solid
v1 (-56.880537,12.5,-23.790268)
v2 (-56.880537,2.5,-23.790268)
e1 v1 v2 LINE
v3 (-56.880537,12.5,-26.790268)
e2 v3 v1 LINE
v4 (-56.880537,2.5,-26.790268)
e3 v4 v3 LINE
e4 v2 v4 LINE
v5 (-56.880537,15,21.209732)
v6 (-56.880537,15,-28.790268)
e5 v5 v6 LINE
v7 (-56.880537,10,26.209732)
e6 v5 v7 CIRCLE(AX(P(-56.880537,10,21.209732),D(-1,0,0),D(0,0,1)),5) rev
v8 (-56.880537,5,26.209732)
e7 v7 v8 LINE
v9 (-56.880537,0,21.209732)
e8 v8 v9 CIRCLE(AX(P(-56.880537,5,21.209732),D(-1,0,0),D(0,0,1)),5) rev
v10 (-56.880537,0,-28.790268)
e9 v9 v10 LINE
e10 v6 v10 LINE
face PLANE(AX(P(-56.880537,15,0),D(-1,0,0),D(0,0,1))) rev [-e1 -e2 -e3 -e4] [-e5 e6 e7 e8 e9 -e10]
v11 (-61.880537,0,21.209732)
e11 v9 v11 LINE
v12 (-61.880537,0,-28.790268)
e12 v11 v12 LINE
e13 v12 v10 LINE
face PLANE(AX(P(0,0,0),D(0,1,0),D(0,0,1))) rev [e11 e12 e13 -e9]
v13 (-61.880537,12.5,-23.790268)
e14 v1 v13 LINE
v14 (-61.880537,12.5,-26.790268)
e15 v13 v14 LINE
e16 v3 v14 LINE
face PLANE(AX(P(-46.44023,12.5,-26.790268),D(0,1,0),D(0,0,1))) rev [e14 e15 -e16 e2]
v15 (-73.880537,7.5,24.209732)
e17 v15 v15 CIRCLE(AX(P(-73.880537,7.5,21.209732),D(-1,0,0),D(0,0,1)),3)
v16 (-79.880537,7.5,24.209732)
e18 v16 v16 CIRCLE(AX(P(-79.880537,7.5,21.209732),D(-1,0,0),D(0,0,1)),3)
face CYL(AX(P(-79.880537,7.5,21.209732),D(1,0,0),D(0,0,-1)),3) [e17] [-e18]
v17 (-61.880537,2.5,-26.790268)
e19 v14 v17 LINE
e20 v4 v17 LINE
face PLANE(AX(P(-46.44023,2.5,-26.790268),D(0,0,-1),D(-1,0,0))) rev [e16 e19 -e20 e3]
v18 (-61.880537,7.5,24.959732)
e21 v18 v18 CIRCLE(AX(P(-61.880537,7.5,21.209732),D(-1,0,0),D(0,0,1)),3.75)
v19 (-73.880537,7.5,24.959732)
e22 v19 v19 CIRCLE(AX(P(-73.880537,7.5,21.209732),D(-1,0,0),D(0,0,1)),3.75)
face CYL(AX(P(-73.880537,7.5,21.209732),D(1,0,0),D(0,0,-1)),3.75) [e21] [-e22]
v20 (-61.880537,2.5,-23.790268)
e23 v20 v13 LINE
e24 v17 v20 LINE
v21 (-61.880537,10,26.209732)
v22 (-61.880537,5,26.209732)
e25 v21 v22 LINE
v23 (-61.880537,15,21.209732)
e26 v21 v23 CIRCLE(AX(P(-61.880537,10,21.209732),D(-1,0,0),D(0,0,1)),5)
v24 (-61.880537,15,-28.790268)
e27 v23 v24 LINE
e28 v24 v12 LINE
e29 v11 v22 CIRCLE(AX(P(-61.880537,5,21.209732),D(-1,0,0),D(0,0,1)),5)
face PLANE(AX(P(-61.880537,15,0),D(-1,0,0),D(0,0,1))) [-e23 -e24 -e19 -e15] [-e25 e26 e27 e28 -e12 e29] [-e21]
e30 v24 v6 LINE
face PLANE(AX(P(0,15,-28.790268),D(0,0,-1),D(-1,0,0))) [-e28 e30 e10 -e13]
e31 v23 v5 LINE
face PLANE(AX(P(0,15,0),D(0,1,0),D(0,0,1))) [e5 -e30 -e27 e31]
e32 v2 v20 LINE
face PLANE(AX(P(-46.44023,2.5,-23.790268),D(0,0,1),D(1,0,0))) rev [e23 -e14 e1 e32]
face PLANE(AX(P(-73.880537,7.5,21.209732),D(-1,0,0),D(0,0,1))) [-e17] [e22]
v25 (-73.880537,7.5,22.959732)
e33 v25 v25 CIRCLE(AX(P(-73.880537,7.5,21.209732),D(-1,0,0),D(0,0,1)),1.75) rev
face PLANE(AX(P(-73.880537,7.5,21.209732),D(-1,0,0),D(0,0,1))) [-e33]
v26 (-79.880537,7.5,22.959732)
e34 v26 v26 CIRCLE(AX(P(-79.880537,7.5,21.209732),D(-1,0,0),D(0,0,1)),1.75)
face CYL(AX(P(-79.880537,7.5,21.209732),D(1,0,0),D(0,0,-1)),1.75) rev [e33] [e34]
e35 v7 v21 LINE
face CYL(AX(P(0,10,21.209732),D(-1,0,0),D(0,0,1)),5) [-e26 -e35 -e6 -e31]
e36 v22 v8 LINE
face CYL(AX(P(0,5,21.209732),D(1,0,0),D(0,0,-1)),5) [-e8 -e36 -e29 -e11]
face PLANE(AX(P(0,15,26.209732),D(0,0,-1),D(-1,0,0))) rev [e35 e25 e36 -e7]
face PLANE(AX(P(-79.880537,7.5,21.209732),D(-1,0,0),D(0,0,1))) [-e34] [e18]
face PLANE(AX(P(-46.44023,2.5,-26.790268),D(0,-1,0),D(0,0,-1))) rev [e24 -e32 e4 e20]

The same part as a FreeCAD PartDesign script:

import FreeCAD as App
import Part
import Sketcher

V = App.Vector


def edges_at(feature, points):
    """Names of the edges that pass closest to the given points."""
    edges = feature.Shape.Edges
    near = lambda p: min(range(len(edges)), key=lambda i: edges[i].distToShape(Part.Vertex(*p))[0])
    return sorted({f"Edge{near(p) + 1}" for p in points})


def add_polygon(sketch, points):
    """Adds a closed chain of lines whose ends are joined by coincident constraints."""
    first, n = sketch.GeometryCount, len(points)
    for a, b in zip(points, points[1:] + points[:1]):
        sketch.addGeometry(Part.LineSegment(App.Vector(*a, 0), App.Vector(*b, 0)), False)
    for i in range(n):
        sketch.addConstraint(Sketcher.Constraint("Coincident", first + i, 2, first + (i + 1) % n, 1))

doc = App.newDocument("Part")
body = doc.addObject("PartDesign::Body", "Body")

sketch1 = doc.addObject("Sketcher::SketchObject", "Sketch")
body.addObject(sketch1)
sketch1.AttachmentSupport = (doc.XZ_Plane, [""])
sketch1.MapMode = "FlatFace"
add_polygon(sketch1, [(-62, -29), (-62, 26), (-57, 26), (-57, -29)])
sketch1.addConstraint([
    Sketcher.Constraint("Vertical", 0),
    Sketcher.Constraint("Horizontal", 1),
    Sketcher.Constraint("Vertical", 2),
    Sketcher.Constraint("Horizontal", 3),
    Sketcher.Constraint("DistanceX", 1, 1, 1, 2, 5.0),
    Sketcher.Constraint("DistanceY", 0, 1, 0, 2, 55.0),
    Sketcher.Constraint("DistanceY", -1, 1, 0, 2, 26.209732),
    Sketcher.Constraint("DistanceX", 0, 2, -1, 1, 61.880537),
])
pad1 = doc.addObject("PartDesign::Pad", "Pad")
body.addObject(pad1)
pad1.Profile = sketch1
pad1.Length = 15
pad1.Reversed = True
doc.recompute()

fillet = doc.addObject("PartDesign::Fillet", "Fillet")
body.addObject(fillet)
fillet.Base = (pad1, edges_at(pad1, [(-59.381, 15, 26.21), (-59.381, 0, 26.21)]))
fillet.Radius = 5

sketch2 = doc.addObject("Sketcher::SketchObject", "Sketch001")
body.addObject(sketch2)
sketch2.AttachmentSupport = (doc.YZ_Plane, [""])
sketch2.MapMode = "FlatFace"
sketch2.AttachmentOffset = App.Placement(V(0, 0, -61.880537), App.Rotation())
add_polygon(sketch2, [(12.5, -26.8), (2.5, -26.8), (2.5, -23.8), (12.5, -23.8)])
sketch2.addConstraint([
    Sketcher.Constraint("Horizontal", 0),
    Sketcher.Constraint("Vertical", 1),
    Sketcher.Constraint("Horizontal", 2),
    Sketcher.Constraint("Vertical", 3),
    Sketcher.Constraint("DistanceX", 0, 2, 0, 1, 10.0),
    Sketcher.Constraint("DistanceY", 1, 1, 1, 2, 3.0),
    Sketcher.Constraint("DistanceX", -1, 1, 0, 2, 2.5),
    Sketcher.Constraint("DistanceY", 0, 2, -1, 1, 26.790268),
])
pocket1 = doc.addObject("PartDesign::Pocket", "Pocket")
body.addObject(pocket1)
pocket1.Profile = sketch2
pocket1.Length = 5
pocket1.Reversed = True

sketch3 = doc.addObject("Sketcher::SketchObject", "Sketch002")
body.addObject(sketch3)
sketch3.AttachmentSupport = (doc.YZ_Plane, [""])
sketch3.MapMode = "FlatFace"
sketch3.AttachmentOffset = App.Placement(V(0, 0, -61.880537), App.Rotation())
sketch3.addGeometry(Part.Circle(V(7.5, 21.2, 0), V(0, 0, 1), 3.8), False)
sketch3.addConstraint([
    Sketcher.Constraint("Diameter", 0, 7.5),
    Sketcher.Constraint("DistanceX", -1, 1, 0, 3, 7.5),
    Sketcher.Constraint("DistanceY", -1, 1, 0, 3, 21.209732),
])
pad2 = doc.addObject("PartDesign::Pad", "Pad001")
body.addObject(pad2)
pad2.Profile = sketch3
pad2.Length = 12
pad2.Reversed = True

sketch4 = doc.addObject("Sketcher::SketchObject", "Sketch003")
body.addObject(sketch4)
sketch4.AttachmentSupport = (doc.YZ_Plane, [""])
sketch4.MapMode = "FlatFace"
sketch4.AttachmentOffset = App.Placement(V(0, 0, -73.880537), App.Rotation())
sketch4.addGeometry([
    Part.Circle(V(7.5, 21.2, 0), V(0, 0, 1), 3),
    Part.Circle(V(7.5, 21.2, 0), V(0, 0, 1), 1.8),
], False)
sketch4.addConstraint([
    Sketcher.Constraint("Coincident", 1, 3, 0, 3),
    Sketcher.Constraint("Diameter", 0, 6.0),
    Sketcher.Constraint("Diameter", 1, 3.5),
    Sketcher.Constraint("DistanceX", -1, 1, 0, 3, 7.5),
    Sketcher.Constraint("DistanceY", -1, 1, 0, 3, 21.209732),
])
pad3 = doc.addObject("PartDesign::Pad", "Pad002")
body.addObject(pad3)
pad3.Profile = sketch4
pad3.Length = 6
pad3.Reversed = True

doc.recompute()
